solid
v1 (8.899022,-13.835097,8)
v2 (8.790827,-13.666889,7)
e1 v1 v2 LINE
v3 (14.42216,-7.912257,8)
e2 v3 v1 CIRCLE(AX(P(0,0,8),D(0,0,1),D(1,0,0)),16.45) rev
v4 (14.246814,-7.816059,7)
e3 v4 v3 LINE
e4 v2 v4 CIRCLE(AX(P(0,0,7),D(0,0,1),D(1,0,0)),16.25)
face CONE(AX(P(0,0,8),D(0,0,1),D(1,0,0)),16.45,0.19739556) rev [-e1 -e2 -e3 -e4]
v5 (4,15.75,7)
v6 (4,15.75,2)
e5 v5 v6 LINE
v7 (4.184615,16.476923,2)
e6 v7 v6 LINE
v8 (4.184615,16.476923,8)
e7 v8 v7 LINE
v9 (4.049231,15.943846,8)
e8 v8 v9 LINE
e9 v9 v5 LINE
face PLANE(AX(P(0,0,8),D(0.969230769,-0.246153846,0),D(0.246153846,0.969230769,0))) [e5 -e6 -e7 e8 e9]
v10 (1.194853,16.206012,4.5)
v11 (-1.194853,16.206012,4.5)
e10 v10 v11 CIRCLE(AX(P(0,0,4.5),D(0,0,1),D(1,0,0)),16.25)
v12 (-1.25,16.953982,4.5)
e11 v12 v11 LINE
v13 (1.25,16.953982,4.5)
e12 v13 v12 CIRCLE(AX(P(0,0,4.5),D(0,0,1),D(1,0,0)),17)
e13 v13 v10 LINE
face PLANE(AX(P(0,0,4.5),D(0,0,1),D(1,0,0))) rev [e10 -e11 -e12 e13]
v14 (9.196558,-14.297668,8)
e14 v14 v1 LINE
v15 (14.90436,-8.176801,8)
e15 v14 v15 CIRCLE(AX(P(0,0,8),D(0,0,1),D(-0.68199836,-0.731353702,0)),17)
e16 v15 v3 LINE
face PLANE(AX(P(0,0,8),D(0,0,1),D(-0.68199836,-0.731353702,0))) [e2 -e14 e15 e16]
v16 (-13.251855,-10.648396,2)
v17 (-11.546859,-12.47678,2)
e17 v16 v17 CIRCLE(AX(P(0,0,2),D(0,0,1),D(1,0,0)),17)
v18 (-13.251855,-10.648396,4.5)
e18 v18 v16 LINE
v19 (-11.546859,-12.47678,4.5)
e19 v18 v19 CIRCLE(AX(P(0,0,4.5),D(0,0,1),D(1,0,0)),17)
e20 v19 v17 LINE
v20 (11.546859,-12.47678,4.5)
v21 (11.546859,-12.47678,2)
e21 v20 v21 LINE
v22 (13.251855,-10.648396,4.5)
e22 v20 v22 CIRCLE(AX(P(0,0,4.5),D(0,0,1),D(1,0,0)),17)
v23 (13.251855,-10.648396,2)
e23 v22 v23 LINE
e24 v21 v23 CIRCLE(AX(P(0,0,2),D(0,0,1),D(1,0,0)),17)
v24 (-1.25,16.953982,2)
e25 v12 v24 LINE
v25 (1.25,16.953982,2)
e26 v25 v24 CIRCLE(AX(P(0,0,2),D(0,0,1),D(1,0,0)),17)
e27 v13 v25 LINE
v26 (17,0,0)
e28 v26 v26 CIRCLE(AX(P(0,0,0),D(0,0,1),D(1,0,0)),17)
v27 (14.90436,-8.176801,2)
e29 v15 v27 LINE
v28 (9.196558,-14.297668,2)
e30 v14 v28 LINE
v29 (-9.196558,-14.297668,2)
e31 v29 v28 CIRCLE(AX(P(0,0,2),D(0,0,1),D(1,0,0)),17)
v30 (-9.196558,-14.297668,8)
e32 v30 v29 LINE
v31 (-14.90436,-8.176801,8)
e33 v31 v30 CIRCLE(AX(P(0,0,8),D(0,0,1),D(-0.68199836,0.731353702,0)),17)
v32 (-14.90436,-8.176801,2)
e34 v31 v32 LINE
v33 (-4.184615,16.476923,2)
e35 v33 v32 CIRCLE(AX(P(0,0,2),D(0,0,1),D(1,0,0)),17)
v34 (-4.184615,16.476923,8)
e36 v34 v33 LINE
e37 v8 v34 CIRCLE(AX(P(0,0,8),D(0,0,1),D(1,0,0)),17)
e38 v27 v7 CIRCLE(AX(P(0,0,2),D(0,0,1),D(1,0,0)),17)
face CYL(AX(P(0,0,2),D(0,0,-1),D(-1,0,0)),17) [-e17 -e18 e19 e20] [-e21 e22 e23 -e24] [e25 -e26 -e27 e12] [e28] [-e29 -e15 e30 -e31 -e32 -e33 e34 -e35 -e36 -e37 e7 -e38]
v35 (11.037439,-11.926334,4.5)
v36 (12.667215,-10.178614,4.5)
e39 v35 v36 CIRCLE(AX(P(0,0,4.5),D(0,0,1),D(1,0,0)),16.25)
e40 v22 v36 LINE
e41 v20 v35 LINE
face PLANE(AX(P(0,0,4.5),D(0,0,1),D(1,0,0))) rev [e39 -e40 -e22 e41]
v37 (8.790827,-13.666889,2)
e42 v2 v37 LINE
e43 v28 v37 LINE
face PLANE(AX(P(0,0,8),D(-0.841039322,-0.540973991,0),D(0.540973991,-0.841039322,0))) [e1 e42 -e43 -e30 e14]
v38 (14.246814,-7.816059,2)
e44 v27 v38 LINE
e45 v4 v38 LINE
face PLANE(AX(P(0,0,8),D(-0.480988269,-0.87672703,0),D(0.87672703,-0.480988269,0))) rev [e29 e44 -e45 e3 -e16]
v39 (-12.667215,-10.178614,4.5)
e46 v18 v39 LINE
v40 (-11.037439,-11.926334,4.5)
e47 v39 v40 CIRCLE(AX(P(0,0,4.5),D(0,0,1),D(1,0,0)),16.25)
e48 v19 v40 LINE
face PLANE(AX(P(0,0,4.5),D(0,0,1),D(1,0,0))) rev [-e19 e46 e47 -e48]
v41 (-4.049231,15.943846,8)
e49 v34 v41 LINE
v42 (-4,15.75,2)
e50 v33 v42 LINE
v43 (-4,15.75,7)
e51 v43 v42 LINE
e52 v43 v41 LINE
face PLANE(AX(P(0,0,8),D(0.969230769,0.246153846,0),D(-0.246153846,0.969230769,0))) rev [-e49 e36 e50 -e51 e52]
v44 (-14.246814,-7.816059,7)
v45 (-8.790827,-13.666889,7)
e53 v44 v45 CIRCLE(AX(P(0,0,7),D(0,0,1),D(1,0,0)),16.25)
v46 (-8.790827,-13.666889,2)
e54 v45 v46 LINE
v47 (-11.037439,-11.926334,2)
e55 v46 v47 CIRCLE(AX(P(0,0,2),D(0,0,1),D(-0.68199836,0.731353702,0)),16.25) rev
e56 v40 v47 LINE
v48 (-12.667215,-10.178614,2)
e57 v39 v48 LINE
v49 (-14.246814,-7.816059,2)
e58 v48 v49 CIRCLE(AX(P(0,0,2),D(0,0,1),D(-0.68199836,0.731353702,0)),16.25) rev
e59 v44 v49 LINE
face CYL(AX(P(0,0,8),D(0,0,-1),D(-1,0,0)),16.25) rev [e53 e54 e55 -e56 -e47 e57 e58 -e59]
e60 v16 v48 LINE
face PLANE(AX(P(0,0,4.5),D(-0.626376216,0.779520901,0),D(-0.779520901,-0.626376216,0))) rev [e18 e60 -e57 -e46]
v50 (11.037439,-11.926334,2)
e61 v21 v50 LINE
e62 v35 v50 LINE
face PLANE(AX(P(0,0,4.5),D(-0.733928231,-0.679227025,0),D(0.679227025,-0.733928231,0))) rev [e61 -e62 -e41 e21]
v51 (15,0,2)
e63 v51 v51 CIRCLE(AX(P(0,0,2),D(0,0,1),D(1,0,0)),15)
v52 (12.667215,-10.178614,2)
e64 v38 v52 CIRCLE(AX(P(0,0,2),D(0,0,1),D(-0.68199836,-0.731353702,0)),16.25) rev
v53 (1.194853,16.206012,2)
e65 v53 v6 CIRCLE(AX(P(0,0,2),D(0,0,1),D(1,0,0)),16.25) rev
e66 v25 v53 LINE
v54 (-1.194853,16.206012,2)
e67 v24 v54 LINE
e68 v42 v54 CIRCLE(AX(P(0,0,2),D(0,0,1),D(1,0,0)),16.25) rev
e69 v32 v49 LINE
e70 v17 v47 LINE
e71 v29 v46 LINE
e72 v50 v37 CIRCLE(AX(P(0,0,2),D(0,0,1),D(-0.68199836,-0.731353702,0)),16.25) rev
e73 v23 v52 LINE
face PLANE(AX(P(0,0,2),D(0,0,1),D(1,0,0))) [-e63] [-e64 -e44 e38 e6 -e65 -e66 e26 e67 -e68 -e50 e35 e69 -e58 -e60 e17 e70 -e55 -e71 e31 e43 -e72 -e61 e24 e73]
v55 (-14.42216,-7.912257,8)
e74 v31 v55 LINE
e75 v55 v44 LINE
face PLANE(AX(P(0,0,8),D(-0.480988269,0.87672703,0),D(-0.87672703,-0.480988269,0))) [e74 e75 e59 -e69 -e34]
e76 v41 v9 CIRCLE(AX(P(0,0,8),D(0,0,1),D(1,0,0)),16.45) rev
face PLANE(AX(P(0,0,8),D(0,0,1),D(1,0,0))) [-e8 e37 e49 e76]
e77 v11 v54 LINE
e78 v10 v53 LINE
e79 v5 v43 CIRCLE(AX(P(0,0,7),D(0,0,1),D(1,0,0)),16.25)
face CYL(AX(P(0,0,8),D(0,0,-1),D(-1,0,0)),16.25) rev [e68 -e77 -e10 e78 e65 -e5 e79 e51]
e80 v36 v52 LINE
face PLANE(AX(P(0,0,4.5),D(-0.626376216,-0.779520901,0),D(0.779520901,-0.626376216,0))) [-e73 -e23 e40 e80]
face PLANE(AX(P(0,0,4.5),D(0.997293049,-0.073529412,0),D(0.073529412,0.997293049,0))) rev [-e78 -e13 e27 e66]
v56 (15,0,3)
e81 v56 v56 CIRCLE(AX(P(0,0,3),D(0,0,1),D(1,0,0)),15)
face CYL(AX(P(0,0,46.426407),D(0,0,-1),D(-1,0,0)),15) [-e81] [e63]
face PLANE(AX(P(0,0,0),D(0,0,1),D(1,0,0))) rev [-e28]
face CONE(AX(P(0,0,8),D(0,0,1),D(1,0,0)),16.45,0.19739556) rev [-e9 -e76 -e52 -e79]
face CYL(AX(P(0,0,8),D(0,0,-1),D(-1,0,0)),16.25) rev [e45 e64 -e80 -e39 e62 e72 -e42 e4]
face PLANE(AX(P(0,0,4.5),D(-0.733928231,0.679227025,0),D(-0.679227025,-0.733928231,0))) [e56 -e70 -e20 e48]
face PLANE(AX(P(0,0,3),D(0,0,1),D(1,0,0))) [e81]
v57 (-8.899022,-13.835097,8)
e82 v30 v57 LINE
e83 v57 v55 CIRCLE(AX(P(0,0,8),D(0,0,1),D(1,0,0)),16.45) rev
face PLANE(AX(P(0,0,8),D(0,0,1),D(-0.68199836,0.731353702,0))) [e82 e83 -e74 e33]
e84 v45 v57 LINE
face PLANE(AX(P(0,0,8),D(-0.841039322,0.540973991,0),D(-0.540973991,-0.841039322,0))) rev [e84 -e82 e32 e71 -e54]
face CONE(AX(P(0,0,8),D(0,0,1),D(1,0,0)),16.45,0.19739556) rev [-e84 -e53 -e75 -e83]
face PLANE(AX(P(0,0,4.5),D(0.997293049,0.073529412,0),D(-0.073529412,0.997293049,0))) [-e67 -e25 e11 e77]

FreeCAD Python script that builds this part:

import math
import FreeCAD as App
import Part
import Sketcher

V = App.Vector
Q = App.Units.Quantity


def edges_at(feature, points):
    """Names of the edges that pass closest to the given points."""
    edges = feature.Shape.Edges
    near = lambda p: min(range(len(edges)), key=lambda i: edges[i].distToShape(Part.Vertex(*p))[0])
    return sorted({f"Edge{near(p) + 1}" for p in points})

doc = App.newDocument("Part")
body = doc.addObject("PartDesign::Body", "Body")

# Sketch on XY plane
sketch1 = body.newObject("Sketcher::SketchObject", "Sketch")
sketch1.AttachmentSupport = (doc.getObject("XY_Plane"), [""])
sketch1.MapMode = "FlatFace"
sketch1.addGeometry(Part.Circle(V(0, 0, 0), V(0, 0, 1), 17), False)
sketch1.addGeometry(Part.Circle(V(0, 0, 0), V(0, 0, 1), 15), False)
sketch1.addConstraint(Sketcher.Constraint("Coincident", 0, 3, -1, 1))
sketch1.addConstraint(Sketcher.Constraint("Coincident", 1, 3, -1, 1))
sketch1.addConstraint(Sketcher.Constraint("Diameter", 0, Q("34 mm")))
sketch1.addConstraint(Sketcher.Constraint("Diameter", 1, Q("30 mm")))
pad1 = body.newObject("PartDesign::Pad", "Pad")
pad1.Profile = sketch1
pad1.Length = 2

# Sketch on XY plane
sketch2 = body.newObject("Sketcher::SketchObject", "Sketch001")
sketch2.AttachmentSupport = (doc.getObject("XY_Plane"), [""])
sketch2.MapMode = "FlatFace"
sketch2.addGeometry(Part.Circle(V(0, 0, 0), V(0, 0, 1), 15), False)
sketch2.addConstraint(Sketcher.Constraint("Coincident", 0, 3, -1, 1))
sketch2.addConstraint(Sketcher.Constraint("Diameter", 0, Q("30 mm")))
pad2 = body.newObject("PartDesign::Pad", "Pad001")
pad2.Profile = sketch2
pad2.Length = 3

# Sketch on XY plane
sketch3 = body.newObject("Sketcher::SketchObject", "Sketch002")
sketch3.AttachmentSupport = (doc.getObject("XY_Plane"), [""])
sketch3.MapMode = "FlatFace"
sketch3.AttachmentOffset = App.Placement(V(0, 0, 2), App.Rotation())
sketch3.addGeometry(Part.ArcOfCircle(Part.Circle(V(0, 0, 0), V(0, 0, 1), 17), math.radians(75.749967), math.radians(104.250033)), False)
sketch3.addGeometry(Part.LineSegment(V(-4.184615, 16.476923, 0), V(-4, 15.75, 0)), False)
sketch3.addGeometry(Part.ArcOfCircle(Part.Circle(V(0, 0, 0), V(0, 0, 1), 16.25), math.radians(75.749967), math.radians(104.250033)), False)
sketch3.addGeometry(Part.LineSegment(V(4, 15.75, 0), V(4.184615, 16.476923, 0)), False)
sketch3.addConstraint(Sketcher.Constraint("Coincident", 0, 2, 1, 1))
sketch3.addConstraint(Sketcher.Constraint("Coincident", 1, 2, 2, 2))
sketch3.addConstraint(Sketcher.Constraint("Coincident", 2, 1, 3, 1))
sketch3.addConstraint(Sketcher.Constraint("Coincident", 3, 2, 0, 1))
sketch3.addConstraint(Sketcher.Constraint("Coincident", 0, 3, -1, 1))
sketch3.addConstraint(Sketcher.Constraint("Coincident", 2, 3, -1, 1))
sketch3.addConstraint(Sketcher.Constraint("Horizontal", 1, 2, 2, 1))
sketch3.addConstraint(Sketcher.Constraint("Horizontal", 0, 2, 3, 2))
sketch3.addConstraint(Sketcher.Constraint("Radius", 0, Q("17 mm")))
sketch3.addConstraint(Sketcher.Constraint("Radius", 2, Q("16.25 mm")))
sketch3.addConstraint(Sketcher.Constraint("DistanceX", 1, 2, -1, 1, Q("4 mm")))
sketch3.addConstraint(Sketcher.Constraint("DistanceX", 0, 2, 3, 2, Q("8.369231 mm")))
pad3 = body.newObject("PartDesign::Pad", "Pad002")
pad3.Profile = sketch3
pad3.Length = 6

# Sketch on XY plane
sketch4 = body.newObject("Sketcher::SketchObject", "Sketch003")
sketch4.AttachmentSupport = (doc.getObject("XY_Plane"), [""])
sketch4.MapMode = "FlatFace"
sketch4.AttachmentOffset = App.Placement(V(0, 0, 2), App.Rotation())
sketch4.addGeometry(Part.ArcOfCircle(Part.Circle(V(0, 0, 0), V(0, 0, 1), 17), math.radians(85.78327), math.radians(94.21673)), False)
sketch4.addGeometry(Part.LineSegment(V(-1.25, 16.953982, 0), V(-1.194853, 16.206012, 0)), False)
sketch4.addGeometry(Part.ArcOfCircle(Part.Circle(V(0, 0, 0), V(0, 0, 1), 16.25), math.radians(85.783269), math.radians(94.216731)), False)
sketch4.addGeometry(Part.LineSegment(V(1.194853, 16.206012, 0), V(1.25, 16.953982, 0)), False)
sketch4.addConstraint(Sketcher.Constraint("Coincident", 0, 2, 1, 1))
sketch4.addConstraint(Sketcher.Constraint("Coincident", 1, 2, 2, 2))
sketch4.addConstraint(Sketcher.Constraint("Coincident", 2, 1, 3, 1))
sketch4.addConstraint(Sketcher.Constraint("Coincident", 3, 2, 0, 1))
sketch4.addConstraint(Sketcher.Constraint("Coincident", 0, 3, -1, 1))
sketch4.addConstraint(Sketcher.Constraint("Coincident", 2, 3, -1, 1))
sketch4.addConstraint(Sketcher.Constraint("Horizontal", 1, 2, 2, 1))
sketch4.addConstraint(Sketcher.Constraint("Horizontal", 0, 2, 3, 2))
sketch4.addConstraint(Sketcher.Constraint("Radius", 0, Q("17 mm")))
sketch4.addConstraint(Sketcher.Constraint("Radius", 2, Q("16.25 mm")))
sketch4.addConstraint(Sketcher.Constraint("DistanceX", 0, 2, 3, 2, Q("2.5 mm")))
sketch4.addConstraint(Sketcher.Constraint("DistanceY", 1, 2, 0, 2, Q("0.74797 mm")))
pocket1 = body.newObject("PartDesign::Pocket", "Pocket")
pocket1.Profile = sketch4
pocket1.Length = 2.5
pocket1.Reversed = True
doc.recompute()

chamfer = body.newObject("PartDesign::Chamfer", "Chamfer")
chamfer.Base = (pocket1, edges_at(pocket1, [(0, 16.25, 8)]))
chamfer.ChamferType = "Two distances"
chamfer.Size = 1
chamfer.Size2 = 0.2
doc.recompute()

polarpattern = body.newObject("PartDesign::PolarPattern", "PolarPattern")
polarpattern.Originals = [pad3, pocket1]
polarpattern.Axis = (doc.getObject("Z_Axis"), [""])
polarpattern.Angle = 133
polarpattern.Occurrences = 2
polarpattern.Reversed = True
body.Tip = polarpattern
doc.recompute()

chamfer2 = body.newObject("PartDesign::Chamfer", "Chamfer001")
chamfer2.Base = (polarpattern, edges_at(polarpattern, [(11.884, -11.082, 8)]))
chamfer2.ChamferType = "Two distances"
chamfer2.Size = 1
chamfer2.Size2 = 0.2
doc.recompute()

polarpattern2 = body.newObject("PartDesign::PolarPattern", "PolarPattern001")
polarpattern2.Originals = [pad3, pocket1]
polarpattern2.Axis = (doc.getObject("Z_Axis"), [""])
polarpattern2.Angle = 133
polarpattern2.Occurrences = 2
body.Tip = polarpattern2
doc.recompute()

chamfer3 = body.newObject("PartDesign::Chamfer", "Chamfer002")
chamfer3.Base = (polarpattern2, edges_at(polarpattern2, [(-11.884, -11.082, 8)]))
chamfer3.ChamferType = "Two distances"
chamfer3.Size = 1
chamfer3.Size2 = 0.2

doc.recompute()
